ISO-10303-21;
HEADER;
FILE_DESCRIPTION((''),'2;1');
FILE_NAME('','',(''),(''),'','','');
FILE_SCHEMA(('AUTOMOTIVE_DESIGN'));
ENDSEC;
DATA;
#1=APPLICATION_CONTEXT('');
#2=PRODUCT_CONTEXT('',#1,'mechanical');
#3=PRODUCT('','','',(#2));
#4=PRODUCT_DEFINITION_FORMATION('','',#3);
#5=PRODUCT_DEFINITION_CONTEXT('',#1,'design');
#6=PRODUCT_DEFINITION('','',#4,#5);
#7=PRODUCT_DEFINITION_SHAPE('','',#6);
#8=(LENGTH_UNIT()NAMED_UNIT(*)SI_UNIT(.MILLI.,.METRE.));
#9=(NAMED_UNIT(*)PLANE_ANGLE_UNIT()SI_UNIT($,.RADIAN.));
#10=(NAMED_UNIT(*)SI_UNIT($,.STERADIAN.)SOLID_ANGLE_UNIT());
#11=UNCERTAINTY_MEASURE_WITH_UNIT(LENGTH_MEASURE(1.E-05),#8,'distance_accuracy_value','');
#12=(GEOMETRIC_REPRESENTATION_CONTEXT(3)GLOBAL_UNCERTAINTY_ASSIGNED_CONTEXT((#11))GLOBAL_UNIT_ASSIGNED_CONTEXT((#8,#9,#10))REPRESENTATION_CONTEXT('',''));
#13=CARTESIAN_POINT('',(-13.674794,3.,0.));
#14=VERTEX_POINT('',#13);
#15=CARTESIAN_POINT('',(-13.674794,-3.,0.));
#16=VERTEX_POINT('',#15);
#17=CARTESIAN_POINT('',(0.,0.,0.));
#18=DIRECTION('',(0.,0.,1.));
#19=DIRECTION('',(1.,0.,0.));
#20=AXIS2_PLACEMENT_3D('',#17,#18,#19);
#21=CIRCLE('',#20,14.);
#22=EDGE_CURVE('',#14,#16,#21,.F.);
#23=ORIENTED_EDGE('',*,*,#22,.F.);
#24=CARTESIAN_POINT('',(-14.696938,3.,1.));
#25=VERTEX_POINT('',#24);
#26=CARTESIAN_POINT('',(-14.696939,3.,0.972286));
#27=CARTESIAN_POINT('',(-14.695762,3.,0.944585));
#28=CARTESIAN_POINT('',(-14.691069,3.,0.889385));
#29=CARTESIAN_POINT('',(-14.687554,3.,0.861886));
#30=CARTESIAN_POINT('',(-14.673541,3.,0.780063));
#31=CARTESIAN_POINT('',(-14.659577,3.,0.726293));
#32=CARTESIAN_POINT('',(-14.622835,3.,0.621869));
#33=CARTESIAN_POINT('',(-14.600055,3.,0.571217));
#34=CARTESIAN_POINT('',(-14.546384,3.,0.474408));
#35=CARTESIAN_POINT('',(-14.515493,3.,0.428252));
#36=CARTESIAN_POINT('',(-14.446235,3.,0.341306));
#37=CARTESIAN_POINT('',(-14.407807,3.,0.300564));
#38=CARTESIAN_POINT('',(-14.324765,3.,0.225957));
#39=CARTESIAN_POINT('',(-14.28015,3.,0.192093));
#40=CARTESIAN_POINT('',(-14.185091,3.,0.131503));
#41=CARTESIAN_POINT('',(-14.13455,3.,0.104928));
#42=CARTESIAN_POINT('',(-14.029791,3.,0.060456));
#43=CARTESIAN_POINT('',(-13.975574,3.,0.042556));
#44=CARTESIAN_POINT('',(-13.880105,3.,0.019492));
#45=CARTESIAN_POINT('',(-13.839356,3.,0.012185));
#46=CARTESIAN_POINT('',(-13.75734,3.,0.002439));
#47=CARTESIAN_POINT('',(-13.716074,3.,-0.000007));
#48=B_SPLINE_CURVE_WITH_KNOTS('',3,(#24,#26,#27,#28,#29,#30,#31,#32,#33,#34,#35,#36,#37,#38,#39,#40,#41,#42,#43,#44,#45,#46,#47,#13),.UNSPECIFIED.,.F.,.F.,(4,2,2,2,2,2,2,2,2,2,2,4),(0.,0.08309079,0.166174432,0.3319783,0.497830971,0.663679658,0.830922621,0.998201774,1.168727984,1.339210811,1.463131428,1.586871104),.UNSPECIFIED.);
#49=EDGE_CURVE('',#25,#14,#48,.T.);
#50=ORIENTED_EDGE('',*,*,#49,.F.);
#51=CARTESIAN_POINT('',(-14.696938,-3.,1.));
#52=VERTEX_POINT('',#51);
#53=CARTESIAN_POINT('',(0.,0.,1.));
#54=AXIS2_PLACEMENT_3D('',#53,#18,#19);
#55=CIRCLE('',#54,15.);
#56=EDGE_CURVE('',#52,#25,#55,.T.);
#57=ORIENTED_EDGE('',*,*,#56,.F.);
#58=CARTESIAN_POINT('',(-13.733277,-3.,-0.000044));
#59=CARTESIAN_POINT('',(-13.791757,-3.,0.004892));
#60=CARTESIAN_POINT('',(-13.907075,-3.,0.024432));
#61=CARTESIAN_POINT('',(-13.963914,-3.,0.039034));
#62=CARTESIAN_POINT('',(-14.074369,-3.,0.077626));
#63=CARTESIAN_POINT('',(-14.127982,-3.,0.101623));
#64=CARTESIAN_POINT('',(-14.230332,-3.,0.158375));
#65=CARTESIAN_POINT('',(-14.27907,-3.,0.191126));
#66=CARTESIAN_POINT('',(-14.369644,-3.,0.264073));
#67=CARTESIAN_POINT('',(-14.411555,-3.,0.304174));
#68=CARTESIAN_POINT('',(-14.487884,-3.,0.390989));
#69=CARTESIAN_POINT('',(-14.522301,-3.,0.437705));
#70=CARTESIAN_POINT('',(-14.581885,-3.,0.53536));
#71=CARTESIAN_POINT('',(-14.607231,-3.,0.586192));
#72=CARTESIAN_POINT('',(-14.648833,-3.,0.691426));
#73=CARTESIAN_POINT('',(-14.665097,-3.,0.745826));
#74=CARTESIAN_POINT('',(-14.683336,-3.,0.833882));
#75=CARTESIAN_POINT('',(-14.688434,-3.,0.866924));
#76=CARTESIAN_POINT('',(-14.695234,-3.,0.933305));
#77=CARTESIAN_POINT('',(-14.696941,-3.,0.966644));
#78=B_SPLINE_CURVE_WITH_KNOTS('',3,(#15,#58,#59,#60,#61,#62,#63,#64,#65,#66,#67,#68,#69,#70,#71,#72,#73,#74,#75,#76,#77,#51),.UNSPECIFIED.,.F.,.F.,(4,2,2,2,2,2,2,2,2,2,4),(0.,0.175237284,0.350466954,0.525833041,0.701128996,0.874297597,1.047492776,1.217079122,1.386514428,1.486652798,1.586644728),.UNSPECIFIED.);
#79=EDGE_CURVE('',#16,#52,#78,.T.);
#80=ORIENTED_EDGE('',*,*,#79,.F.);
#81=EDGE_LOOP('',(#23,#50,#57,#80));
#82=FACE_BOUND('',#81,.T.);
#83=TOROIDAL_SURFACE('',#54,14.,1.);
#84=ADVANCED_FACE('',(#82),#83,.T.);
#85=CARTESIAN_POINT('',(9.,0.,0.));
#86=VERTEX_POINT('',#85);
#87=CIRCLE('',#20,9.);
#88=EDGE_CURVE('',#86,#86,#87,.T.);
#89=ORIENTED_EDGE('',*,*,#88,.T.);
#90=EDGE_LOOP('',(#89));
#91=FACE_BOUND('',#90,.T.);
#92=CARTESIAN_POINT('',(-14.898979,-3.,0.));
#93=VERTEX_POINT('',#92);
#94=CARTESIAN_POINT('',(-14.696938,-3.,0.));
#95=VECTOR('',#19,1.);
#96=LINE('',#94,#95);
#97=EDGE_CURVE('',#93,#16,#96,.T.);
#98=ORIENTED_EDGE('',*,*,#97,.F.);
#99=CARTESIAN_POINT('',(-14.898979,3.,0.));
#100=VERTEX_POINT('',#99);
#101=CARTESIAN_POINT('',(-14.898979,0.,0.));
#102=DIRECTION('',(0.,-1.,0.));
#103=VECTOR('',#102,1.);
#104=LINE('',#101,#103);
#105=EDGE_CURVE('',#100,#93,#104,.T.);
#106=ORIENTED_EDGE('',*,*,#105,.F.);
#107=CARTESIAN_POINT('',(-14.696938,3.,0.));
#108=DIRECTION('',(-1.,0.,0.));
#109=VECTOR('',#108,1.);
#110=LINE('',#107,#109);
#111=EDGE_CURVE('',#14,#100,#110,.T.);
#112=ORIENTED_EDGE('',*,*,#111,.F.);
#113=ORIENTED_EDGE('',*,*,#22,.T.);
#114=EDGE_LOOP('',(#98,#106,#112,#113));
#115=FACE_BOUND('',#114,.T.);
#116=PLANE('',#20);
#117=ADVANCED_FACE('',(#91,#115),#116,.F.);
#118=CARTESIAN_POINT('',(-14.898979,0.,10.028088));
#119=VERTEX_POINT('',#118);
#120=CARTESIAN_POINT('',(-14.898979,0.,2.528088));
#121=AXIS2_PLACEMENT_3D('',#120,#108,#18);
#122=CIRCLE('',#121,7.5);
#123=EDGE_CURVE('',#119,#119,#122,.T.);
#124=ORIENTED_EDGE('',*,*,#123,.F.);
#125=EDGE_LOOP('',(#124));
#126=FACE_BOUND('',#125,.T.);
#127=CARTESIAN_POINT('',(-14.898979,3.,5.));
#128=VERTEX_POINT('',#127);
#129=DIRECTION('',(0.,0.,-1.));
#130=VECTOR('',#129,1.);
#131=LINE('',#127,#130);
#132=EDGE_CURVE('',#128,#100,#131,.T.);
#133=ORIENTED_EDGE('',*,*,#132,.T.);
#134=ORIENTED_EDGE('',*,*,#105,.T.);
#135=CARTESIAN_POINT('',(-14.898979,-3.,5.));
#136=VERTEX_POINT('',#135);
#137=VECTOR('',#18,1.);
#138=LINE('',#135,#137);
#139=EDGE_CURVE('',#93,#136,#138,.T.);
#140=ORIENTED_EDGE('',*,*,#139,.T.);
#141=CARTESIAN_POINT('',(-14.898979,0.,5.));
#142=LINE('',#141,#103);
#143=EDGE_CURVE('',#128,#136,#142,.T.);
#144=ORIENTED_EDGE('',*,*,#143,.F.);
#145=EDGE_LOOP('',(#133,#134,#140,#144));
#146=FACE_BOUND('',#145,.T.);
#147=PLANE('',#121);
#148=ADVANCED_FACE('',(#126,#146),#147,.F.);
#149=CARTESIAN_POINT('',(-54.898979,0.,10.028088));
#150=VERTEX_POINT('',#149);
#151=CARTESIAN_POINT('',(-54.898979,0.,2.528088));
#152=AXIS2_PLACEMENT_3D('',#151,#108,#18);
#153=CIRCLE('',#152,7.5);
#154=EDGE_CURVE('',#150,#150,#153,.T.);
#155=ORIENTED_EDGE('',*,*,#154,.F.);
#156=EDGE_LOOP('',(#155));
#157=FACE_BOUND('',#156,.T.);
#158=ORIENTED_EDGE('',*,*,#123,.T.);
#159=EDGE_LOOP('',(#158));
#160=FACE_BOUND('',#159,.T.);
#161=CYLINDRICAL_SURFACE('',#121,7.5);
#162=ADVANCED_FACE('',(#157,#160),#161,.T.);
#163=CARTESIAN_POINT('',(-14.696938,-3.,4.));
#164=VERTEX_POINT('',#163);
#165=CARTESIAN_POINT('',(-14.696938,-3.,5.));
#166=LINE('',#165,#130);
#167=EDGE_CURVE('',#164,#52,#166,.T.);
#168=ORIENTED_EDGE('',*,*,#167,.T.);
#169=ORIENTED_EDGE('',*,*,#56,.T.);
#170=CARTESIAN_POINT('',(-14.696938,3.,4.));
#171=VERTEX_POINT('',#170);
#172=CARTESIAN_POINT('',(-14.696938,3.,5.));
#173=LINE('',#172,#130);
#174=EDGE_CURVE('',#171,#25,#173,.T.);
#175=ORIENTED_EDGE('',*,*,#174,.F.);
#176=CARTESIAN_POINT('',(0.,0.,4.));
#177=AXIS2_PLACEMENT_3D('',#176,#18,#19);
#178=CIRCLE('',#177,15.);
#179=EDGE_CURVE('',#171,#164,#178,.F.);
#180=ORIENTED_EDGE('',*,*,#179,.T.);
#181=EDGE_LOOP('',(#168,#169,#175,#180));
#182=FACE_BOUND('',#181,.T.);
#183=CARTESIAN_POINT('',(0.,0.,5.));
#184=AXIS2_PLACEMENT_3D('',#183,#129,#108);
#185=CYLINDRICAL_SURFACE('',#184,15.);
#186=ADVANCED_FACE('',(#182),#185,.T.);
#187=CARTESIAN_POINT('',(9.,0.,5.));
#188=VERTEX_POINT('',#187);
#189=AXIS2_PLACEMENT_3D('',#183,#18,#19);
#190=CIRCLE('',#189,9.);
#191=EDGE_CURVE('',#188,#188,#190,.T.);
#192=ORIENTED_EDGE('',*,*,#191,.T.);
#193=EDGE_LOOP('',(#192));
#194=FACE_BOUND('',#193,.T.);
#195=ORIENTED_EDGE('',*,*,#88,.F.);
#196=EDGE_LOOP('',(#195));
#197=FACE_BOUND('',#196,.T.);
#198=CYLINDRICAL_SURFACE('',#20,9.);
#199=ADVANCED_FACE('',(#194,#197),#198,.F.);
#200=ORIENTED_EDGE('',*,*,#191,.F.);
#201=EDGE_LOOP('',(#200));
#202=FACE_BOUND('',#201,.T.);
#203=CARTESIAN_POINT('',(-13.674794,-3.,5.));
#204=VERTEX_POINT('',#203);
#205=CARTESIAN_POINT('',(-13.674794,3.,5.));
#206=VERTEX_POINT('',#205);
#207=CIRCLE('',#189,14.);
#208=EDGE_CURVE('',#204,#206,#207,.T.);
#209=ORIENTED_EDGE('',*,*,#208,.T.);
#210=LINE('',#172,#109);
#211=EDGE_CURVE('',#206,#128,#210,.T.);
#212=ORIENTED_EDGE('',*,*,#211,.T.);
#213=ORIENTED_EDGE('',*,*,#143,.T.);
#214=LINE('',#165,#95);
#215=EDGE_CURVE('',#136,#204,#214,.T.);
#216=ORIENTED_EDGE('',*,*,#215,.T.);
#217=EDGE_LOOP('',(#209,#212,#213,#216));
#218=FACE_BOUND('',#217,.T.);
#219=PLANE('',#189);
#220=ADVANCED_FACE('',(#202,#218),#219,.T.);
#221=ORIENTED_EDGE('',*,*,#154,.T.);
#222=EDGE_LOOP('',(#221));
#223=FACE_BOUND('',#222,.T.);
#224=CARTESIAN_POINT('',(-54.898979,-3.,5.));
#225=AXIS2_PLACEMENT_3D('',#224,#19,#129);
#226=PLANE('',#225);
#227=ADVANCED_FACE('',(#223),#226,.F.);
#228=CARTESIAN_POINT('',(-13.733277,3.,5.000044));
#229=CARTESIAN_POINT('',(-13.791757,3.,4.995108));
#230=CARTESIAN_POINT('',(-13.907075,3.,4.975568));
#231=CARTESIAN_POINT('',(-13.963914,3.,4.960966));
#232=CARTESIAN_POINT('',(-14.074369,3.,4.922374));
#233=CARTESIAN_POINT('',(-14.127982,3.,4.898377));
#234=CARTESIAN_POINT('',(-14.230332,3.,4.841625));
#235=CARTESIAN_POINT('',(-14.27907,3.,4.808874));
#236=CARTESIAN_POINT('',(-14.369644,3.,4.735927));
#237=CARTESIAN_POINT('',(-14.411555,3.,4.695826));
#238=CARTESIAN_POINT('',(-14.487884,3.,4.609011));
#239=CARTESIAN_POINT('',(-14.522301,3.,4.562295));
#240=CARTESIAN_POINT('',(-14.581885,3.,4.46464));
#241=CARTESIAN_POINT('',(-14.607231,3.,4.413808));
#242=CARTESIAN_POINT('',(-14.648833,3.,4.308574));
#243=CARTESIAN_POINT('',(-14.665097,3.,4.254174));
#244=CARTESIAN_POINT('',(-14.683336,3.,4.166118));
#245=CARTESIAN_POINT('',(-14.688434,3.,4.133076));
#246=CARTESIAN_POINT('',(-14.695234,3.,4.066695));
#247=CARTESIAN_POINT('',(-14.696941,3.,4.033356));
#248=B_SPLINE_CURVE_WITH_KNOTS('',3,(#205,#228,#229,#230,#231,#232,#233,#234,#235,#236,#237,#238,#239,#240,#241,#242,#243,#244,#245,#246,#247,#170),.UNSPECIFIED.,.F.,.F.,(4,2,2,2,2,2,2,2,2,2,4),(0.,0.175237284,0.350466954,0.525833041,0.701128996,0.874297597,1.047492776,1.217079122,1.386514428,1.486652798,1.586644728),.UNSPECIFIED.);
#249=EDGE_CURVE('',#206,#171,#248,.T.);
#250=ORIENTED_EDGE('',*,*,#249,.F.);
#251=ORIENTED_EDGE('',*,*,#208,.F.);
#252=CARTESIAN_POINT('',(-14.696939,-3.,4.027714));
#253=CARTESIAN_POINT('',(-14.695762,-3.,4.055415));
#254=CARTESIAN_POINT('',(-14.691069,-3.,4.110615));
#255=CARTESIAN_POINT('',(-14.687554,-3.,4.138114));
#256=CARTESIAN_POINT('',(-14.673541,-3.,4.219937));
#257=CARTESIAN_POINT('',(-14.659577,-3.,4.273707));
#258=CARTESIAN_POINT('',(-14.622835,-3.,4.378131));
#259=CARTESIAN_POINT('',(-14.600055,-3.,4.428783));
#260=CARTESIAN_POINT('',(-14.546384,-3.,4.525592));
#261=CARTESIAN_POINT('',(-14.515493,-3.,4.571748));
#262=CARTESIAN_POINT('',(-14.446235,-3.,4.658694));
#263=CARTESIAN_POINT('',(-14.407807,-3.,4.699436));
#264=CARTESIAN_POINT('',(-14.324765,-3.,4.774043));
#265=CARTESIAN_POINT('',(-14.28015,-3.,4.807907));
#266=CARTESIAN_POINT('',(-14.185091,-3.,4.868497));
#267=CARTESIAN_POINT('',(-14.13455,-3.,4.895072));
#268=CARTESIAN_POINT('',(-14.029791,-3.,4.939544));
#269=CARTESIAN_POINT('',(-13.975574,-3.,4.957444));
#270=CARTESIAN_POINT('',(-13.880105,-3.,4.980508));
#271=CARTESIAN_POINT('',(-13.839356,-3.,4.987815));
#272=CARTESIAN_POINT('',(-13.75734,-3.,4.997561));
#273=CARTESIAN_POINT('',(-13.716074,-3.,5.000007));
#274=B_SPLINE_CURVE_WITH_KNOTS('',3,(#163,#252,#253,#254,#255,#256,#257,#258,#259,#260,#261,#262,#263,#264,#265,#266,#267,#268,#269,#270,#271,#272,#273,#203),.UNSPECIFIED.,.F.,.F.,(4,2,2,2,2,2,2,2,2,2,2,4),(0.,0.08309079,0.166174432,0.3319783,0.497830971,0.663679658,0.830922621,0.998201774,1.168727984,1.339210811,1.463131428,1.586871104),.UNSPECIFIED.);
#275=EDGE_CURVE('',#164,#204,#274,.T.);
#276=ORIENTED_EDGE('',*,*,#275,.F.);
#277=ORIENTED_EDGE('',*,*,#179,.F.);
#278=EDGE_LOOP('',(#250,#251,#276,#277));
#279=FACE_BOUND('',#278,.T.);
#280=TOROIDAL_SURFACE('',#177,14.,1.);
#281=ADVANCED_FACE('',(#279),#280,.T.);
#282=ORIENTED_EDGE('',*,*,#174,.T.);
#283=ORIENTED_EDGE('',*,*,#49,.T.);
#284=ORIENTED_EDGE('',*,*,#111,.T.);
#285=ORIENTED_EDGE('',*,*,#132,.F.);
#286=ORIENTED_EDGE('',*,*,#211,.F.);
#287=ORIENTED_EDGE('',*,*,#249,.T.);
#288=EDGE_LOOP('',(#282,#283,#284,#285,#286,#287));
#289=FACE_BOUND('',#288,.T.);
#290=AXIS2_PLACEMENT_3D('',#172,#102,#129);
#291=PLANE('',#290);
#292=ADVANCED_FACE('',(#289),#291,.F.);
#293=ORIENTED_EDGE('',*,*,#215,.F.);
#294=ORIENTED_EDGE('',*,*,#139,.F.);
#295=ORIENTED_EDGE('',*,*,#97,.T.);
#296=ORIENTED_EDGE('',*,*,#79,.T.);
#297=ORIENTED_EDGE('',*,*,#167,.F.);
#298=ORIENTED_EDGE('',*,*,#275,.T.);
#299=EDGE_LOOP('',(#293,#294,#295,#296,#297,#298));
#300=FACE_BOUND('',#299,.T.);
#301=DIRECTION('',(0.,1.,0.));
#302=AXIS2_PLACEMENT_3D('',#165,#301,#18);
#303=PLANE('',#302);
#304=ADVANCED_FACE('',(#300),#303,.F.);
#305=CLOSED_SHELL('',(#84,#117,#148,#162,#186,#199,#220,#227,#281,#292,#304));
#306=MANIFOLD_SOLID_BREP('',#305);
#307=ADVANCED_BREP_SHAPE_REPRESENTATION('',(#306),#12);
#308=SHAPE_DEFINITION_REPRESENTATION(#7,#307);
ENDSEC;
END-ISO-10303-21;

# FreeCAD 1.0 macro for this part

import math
import FreeCAD as App
import Part
import Sketcher

V = App.Vector
Q = App.Units.Quantity


def edges_at(feature, points):
    """Names of the edges that pass closest to the given points."""
    edges = feature.Shape.Edges
    near = lambda p: min(range(len(edges)), key=lambda i: edges[i].distToShape(Part.Vertex(*p))[0])
    return sorted({f"Edge{near(p) + 1}" for p in points})

doc = App.newDocument("Part")
body = doc.addObject("PartDesign::Body", "Body")

# Sketch on XY plane
sketch1 = body.newObject("Sketcher::SketchObject", "Sketch")
sketch1.AttachmentSupport = (doc.getObject("XY_Plane"), [""])
sketch1.MapMode = "FlatFace"
sketch1.addGeometry(Part.LineSegment(V(-55, 3, 0), V(-55, -3, 0)), False)
sketch1.addGeometry(Part.LineSegment(V(-55, -3, 0), V(-15, -3, 0)), False)
sketch1.addGeometry(Part.ArcOfCircle(Part.Circle(V(0, 0, 0), V(0, 0, 1), 15), math.radians(-168), math.radians(168)), False)
sketch1.addGeometry(Part.LineSegment(V(-15, 3, 0), V(-55, 3, 0)), False)
sketch1.addConstraint(Sketcher.Constraint("Coincident", 0, 2, 1, 1))
sketch1.addConstraint(Sketcher.Constraint("Coincident", 1, 2, 2, 1))
sketch1.addConstraint(Sketcher.Constraint("Coincident", 2, 2, 3, 1))
sketch1.addConstraint(Sketcher.Constraint("Coincident", 3, 2, 0, 1))
sketch1.addConstraint(Sketcher.Constraint("Vertical", 0))
sketch1.addConstraint(Sketcher.Constraint("Horizontal", 1))
sketch1.addConstraint(Sketcher.Constraint("Horizontal", 3))
sketch1.addConstraint(Sketcher.Constraint("Coincident", 2, 3, -1, 1))
sketch1.addConstraint(Sketcher.Constraint("Vertical", 1, 2, 2, 2))
sketch1.addConstraint(Sketcher.Constraint("Radius", 2, Q("15 mm")))
sketch1.addConstraint(Sketcher.Constraint("DistanceY", 0, 2, 0, 1, Q("6 mm")))
sketch1.addConstraint(Sketcher.Constraint("DistanceX", 1, 1, 1, 2, Q("40.202041 mm")))
pad1 = body.newObject("PartDesign::Pad", "Pad")
pad1.Profile = sketch1
pad1.Length = 5

# Sketch on XY plane
sketch2 = body.newObject("Sketcher::SketchObject", "Sketch001")
sketch2.AttachmentSupport = (doc.getObject("XY_Plane"), [""])
sketch2.MapMode = "FlatFace"
sketch2.AttachmentOffset = App.Placement(V(0, 0, 5), App.Rotation())
sketch2.addGeometry(Part.Circle(V(0, 0, 0), V(0, 0, 1), 9), False)
sketch2.addConstraint(Sketcher.Constraint("Coincident", 0, 3, -1, 1))
sketch2.addConstraint(Sketcher.Constraint("Diameter", 0, Q("18 mm")))
pocket1 = body.newObject("PartDesign::Pocket", "Pocket")
pocket1.Profile = sketch2
pocket1.Type = "ThroughAll"
doc.recompute()

fillet = body.newObject("PartDesign::Fillet", "Fillet")
fillet.Base = (pocket1, edges_at(pocket1, [(15, 0, 5), (15, 0, 0)]))
fillet.Radius = 1

# Sketch on YZ plane
sketch3 = body.newObject("Sketcher::SketchObject", "Sketch002")
sketch3.AttachmentSupport = (doc.getObject("YZ_Plane"), [""])
sketch3.MapMode = "FlatFace"
sketch3.AttachmentOffset = App.Placement(V(0, 0, -54.898979), App.Rotation())
sketch3.addGeometry(Part.Circle(V(0, 3, 0), V(0, 0, 1), 8), False)
sketch3.addConstraint(Sketcher.Constraint("PointOnObject", 0, 3, -2))
sketch3.addConstraint(Sketcher.Constraint("Diameter", 0, Q("15 mm")))
sketch3.addConstraint(Sketcher.Constraint("DistanceY", -1, 1, 0, 3, Q("2.528088 mm")))
pad2 = body.newObject("PartDesign::Pad", "Pad001")
pad2.Profile = sketch3
pad2.Length = 40

doc.recompute()
